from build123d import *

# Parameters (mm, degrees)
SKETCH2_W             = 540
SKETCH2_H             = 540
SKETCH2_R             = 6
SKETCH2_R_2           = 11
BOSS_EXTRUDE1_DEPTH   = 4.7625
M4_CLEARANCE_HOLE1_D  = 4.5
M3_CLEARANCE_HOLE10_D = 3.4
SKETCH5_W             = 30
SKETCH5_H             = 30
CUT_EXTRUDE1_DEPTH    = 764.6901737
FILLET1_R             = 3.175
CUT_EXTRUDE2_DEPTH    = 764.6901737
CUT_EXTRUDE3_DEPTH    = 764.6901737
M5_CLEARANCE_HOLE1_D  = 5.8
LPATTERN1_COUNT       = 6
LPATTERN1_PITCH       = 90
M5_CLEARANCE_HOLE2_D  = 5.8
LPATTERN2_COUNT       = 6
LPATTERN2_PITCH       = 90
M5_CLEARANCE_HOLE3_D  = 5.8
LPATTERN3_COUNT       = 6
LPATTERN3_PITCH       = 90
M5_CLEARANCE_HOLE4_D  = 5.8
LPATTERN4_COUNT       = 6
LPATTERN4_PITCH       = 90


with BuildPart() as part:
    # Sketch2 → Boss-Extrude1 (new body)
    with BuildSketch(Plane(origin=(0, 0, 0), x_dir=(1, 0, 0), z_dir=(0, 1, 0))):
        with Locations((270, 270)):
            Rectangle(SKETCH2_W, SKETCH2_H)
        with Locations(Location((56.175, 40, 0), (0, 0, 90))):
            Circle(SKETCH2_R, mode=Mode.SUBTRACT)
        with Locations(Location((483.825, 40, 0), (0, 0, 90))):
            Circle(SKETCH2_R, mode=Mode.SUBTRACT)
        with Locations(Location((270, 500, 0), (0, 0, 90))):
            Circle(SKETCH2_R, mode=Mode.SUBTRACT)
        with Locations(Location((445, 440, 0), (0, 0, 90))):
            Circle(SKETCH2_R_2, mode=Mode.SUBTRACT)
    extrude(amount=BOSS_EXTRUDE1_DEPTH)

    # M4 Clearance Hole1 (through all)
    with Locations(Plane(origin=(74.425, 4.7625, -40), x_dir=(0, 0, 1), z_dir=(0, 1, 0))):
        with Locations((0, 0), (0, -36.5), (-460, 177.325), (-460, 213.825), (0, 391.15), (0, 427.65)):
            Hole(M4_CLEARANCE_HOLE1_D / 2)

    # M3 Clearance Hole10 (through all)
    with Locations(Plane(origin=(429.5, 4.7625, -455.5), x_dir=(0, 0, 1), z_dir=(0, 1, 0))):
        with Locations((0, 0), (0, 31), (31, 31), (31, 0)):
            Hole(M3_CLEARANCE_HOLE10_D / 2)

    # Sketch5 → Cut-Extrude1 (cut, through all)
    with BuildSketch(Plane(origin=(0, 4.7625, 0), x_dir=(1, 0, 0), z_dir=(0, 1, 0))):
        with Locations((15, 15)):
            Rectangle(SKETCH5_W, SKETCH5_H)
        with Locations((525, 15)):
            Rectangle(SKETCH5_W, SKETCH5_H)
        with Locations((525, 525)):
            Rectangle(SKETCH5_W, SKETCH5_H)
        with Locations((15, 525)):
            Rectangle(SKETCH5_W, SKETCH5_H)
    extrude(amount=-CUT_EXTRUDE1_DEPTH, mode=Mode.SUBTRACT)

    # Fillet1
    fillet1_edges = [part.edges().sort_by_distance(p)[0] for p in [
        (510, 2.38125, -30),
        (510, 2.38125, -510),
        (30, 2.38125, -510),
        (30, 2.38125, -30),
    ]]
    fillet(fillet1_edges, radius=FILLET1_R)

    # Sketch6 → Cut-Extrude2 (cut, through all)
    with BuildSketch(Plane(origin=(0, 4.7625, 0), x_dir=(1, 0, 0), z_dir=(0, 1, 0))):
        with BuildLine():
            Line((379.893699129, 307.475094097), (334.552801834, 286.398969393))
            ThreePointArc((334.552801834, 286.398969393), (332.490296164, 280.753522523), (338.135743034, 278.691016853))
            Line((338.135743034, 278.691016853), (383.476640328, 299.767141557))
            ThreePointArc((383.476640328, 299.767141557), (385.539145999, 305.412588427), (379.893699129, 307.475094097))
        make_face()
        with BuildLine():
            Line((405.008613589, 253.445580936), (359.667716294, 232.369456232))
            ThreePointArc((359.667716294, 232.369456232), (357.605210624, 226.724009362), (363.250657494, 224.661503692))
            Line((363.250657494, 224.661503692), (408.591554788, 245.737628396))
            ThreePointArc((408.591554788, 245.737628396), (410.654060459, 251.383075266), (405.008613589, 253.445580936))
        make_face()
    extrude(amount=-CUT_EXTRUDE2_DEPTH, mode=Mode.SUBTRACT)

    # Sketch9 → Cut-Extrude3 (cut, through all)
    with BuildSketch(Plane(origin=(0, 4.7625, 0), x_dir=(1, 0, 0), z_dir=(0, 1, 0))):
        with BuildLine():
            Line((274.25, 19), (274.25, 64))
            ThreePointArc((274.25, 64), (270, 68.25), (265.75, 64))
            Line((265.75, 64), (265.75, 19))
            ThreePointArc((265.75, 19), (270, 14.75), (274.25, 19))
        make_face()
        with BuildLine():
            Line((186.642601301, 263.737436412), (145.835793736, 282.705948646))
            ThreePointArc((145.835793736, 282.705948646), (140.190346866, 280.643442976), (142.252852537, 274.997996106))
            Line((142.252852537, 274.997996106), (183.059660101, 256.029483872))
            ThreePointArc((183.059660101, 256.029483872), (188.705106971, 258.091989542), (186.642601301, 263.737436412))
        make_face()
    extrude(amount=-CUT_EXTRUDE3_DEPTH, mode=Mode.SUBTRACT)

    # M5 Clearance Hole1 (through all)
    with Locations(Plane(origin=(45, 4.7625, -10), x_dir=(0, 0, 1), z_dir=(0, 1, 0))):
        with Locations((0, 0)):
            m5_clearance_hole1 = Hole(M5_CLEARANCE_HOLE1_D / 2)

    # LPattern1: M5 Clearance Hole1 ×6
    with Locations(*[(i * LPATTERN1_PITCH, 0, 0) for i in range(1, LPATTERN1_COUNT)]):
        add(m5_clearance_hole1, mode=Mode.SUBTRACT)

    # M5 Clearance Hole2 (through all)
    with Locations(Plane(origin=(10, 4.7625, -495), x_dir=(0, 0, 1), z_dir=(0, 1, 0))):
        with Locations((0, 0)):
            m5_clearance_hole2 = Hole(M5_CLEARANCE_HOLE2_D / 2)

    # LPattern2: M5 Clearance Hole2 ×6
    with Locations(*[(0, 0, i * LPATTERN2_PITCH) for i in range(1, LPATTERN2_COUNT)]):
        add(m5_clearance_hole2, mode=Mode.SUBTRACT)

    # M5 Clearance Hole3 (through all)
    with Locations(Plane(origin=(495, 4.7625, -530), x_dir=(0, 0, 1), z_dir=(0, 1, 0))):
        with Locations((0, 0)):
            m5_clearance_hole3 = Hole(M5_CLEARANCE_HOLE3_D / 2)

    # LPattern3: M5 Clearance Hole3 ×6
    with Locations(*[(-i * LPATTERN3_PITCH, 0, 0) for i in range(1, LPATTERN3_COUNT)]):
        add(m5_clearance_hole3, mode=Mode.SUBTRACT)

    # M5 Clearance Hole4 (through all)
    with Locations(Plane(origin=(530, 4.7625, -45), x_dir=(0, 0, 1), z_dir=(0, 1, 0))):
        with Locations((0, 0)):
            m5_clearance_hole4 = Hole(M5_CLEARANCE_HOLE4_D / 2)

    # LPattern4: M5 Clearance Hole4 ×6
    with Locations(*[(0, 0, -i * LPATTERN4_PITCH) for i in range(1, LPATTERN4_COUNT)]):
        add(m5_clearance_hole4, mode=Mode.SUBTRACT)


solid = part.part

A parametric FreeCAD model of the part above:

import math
import FreeCAD as App
import Part
import Sketcher
from FreeCAD import Vector
Q = App.Units.Quantity


def edges_at(feature, points):
    """Names of the edges that pass closest to the given points."""
    edges = feature.Shape.Edges
    near = lambda p: min(range(len(edges)), key=lambda i: edges[i].distToShape(Part.Vertex(*p))[0])
    return sorted({f"Edge{near(p) + 1}" for p in points})


def add_polygon(sketch, points):
    """Adds a closed chain of lines whose ends are joined by coincident constraints."""
    first, n = sketch.GeometryCount, len(points)
    for a, b in zip(points, points[1:] + points[:1]):
        sketch.addGeometry(Part.LineSegment(App.Vector(*a, 0), App.Vector(*b, 0)), False)
    for i in range(n):
        sketch.addConstraint(Sketcher.Constraint("Coincident", first + i, 2, first + (i + 1) % n, 1))

doc = App.newDocument("Part")
body = doc.addObject("PartDesign::Body", "Body")

# Sketch on XZ plane
sketch1 = body.newObject("Sketcher::SketchObject", "Sketch")
sketch1.AttachmentSupport = (doc.getObject("XZ_Plane"), [""])
sketch1.MapMode = "FlatFace"
add_polygon(sketch1, [(0, -540), (0, 0), (540, 0), (540, -540)])  # lines 0-3
sketch1.addGeometry(Part.Circle(Vector(56, -40, 0), Vector(0, 0, 1), 6), False)  # 4
sketch1.addGeometry(Part.Circle(Vector(484, -40, 0), Vector(0, 0, 1), 6), False)  # 5
sketch1.addGeometry(Part.Circle(Vector(270, -500, 0), Vector(0, 0, 1), 6), False)  # 6
sketch1.addGeometry(Part.Circle(Vector(445, -440, 0), Vector(0, 0, 1), 11), False)  # 7
sketch1.addConstraint(Sketcher.Constraint("Vertical", 0))
sketch1.addConstraint(Sketcher.Constraint("Horizontal", 1))
sketch1.addConstraint(Sketcher.Constraint("Vertical", 2))
sketch1.addConstraint(Sketcher.Constraint("Horizontal", 3))
sketch1.addConstraint(Sketcher.Constraint("Coincident", 0, 2, -1, 1))
sketch1.addConstraint(Sketcher.Constraint("Equal", 4, 5))
sketch1.addConstraint(Sketcher.Constraint("Equal", 5, 6))
sketch1.addConstraint(Sketcher.Constraint("Horizontal", 4, 3, 5, 3))
sketch1.addConstraint(Sketcher.Constraint("Equal", 3, 0))
sketch1.addConstraint(Sketcher.Constraint("Diameter", 4, Q("12 mm")))
sketch1.addConstraint(Sketcher.Constraint("Diameter", 7, Q("22 mm")))
sketch1.addConstraint(Sketcher.Constraint("DistanceX", 1, 1, 1, 2, Q("540 mm")))
sketch1.addConstraint(Sketcher.Constraint("DistanceY", 4, 3, -1, 1, Q("40 mm")))
sketch1.addConstraint(Sketcher.Constraint("DistanceX", -1, 1, 6, 3, Q("270 mm")))
sketch1.addConstraint(Sketcher.Constraint("DistanceY", 6, 3, -1, 1, Q("500 mm")))
sketch1.addConstraint(Sketcher.Constraint("DistanceX", -1, 1, 7, 3, Q("445 mm")))
sketch1.addConstraint(Sketcher.Constraint("DistanceY", 7, 3, -1, 1, Q("440 mm")))
sketch1.addConstraint(Sketcher.Constraint("DistanceX", 4, 3, 5, 3, Q("427.65 mm")))
sketch1.addConstraint(Sketcher.Constraint("DistanceX", -1, 1, 4, 3, Q("56.175 mm")))
pad1 = body.newObject("PartDesign::Pad", "Pad")
pad1.Profile = sketch1
pad1.Length = 4.7625
pad1.Reversed = True

# Sketch on XZ plane
sketch2 = body.newObject("Sketcher::SketchObject", "Sketch001")
sketch2.AttachmentSupport = (doc.getObject("XZ_Plane"), [""])
sketch2.MapMode = "FlatFace"
sketch2.AttachmentOffset = App.Placement(Vector(0, 0, -4.7625), App.Rotation())
sketch2.addGeometry(Part.Circle(Vector(74.4, -40, 0), Vector(0, 0, 1), 2.2), False)
sketch2.addGeometry(Part.Circle(Vector(37.9, -40, 0), Vector(0, 0, 1), 2.2), False)
sketch2.addGeometry(Part.Circle(Vector(251.8, -500, 0), Vector(0, 0, 1), 2.2), False)
sketch2.addGeometry(Part.Circle(Vector(288.2, -500, 0), Vector(0, 0, 1), 2.2), False)
sketch2.addGeometry(Part.Circle(Vector(465.6, -40, 0), Vector(0, 0, 1), 2.2), False)
sketch2.addGeometry(Part.Circle(Vector(502.1, -40, 0), Vector(0, 0, 1), 2.2), False)
sketch2.addConstraint(Sketcher.Constraint("Equal", 0, 1))
sketch2.addConstraint(Sketcher.Constraint("Equal", 1, 2))
sketch2.addConstraint(Sketcher.Constraint("Equal", 2, 3))
sketch2.addConstraint(Sketcher.Constraint("Equal", 3, 4))
sketch2.addConstraint(Sketcher.Constraint("Equal", 4, 5))
sketch2.addConstraint(Sketcher.Constraint("Horizontal", 0, 3, 1, 3))
sketch2.addConstraint(Sketcher.Constraint("Horizontal", 2, 3, 3, 3))
sketch2.addConstraint(Sketcher.Constraint("Horizontal", 1, 3, 4, 3))
sketch2.addConstraint(Sketcher.Constraint("Horizontal", 4, 3, 5, 3))
sketch2.addConstraint(Sketcher.Constraint("Diameter", 0, Q("4.5 mm")))
sketch2.addConstraint(Sketcher.Constraint("DistanceY", 0, 3, -1, 1, Q("40 mm")))
sketch2.addConstraint(Sketcher.Constraint("DistanceY", 2, 3, -1, 1, Q("500 mm")))
sketch2.addConstraint(Sketcher.Constraint("DistanceX", 1, 3, 0, 3, Q("36.5 mm")))
sketch2.addConstraint(Sketcher.Constraint("DistanceX", 2, 3, 3, 3, Q("36.5 mm")))
sketch2.addConstraint(Sketcher.Constraint("DistanceX", 4, 3, 5, 3, Q("36.5 mm")))
sketch2.addConstraint(Sketcher.Constraint("DistanceX", -1, 1, 2, 3, Q("251.75 mm")))
sketch2.addConstraint(Sketcher.Constraint("DistanceX", 0, 3, 4, 3, Q("391.15 mm")))
sketch2.addConstraint(Sketcher.Constraint("DistanceX", -1, 1, 0, 3, Q("74.425 mm")))
doc.recompute()
hole = body.newObject("PartDesign::Hole", "Hole")
hole.Profile = sketch2
hole.ThreadType = "None"
hole.Diameter = 4.5
hole.DepthType = "ThroughAll"
hole.Reversed = True

# Sketch on XZ plane
sketch3 = body.newObject("Sketcher::SketchObject", "Sketch002")
sketch3.AttachmentSupport = (doc.getObject("XZ_Plane"), [""])
sketch3.MapMode = "FlatFace"
sketch3.AttachmentOffset = App.Placement(Vector(0, 0, -4.7625), App.Rotation())
sketch3.addGeometry(Part.Circle(Vector(429.5, -455.5, 0), Vector(0, 0, 1), 1.7), False)
sketch3.addGeometry(Part.Circle(Vector(460.5, -455.5, 0), Vector(0, 0, 1), 1.7), False)
sketch3.addGeometry(Part.Circle(Vector(460.5, -424.5, 0), Vector(0, 0, 1), 1.7), False)
sketch3.addGeometry(Part.Circle(Vector(429.5, -424.5, 0), Vector(0, 0, 1), 1.7), False)
sketch3.addConstraint(Sketcher.Constraint("Equal", 0, 1))
sketch3.addConstraint(Sketcher.Constraint("Equal", 1, 2))
sketch3.addConstraint(Sketcher.Constraint("Equal", 2, 3))
sketch3.addConstraint(Sketcher.Constraint("Horizontal", 0, 3, 1, 3))
sketch3.addConstraint(Sketcher.Constraint("Horizontal", 2, 3, 3, 3))
sketch3.addConstraint(Sketcher.Constraint("Vertical", 1, 3, 2, 3))
sketch3.addConstraint(Sketcher.Constraint("Vertical", 0, 3, 3, 3))
sketch3.addConstraint(Sketcher.Constraint("Diameter", 0, Q("3.4 mm")))
sketch3.addConstraint(Sketcher.Constraint("DistanceX", 0, 3, 1, 3, Q("31 mm")))
sketch3.addConstraint(Sketcher.Constraint("DistanceY", 1, 3, 2, 3, Q("31 mm")))
sketch3.addConstraint(Sketcher.Constraint("DistanceX", -1, 1, 0, 3, Q("429.5 mm")))
sketch3.addConstraint(Sketcher.Constraint("DistanceY", 0, 3, -1, 1, Q("455.5 mm")))
doc.recompute()
hole2 = body.newObject("PartDesign::Hole", "Hole001")
hole2.Profile = sketch3
hole2.ThreadType = "None"
hole2.Diameter = 3.4
hole2.DepthType = "ThroughAll"
hole2.Reversed = True

# Sketch on XZ plane
sketch4 = body.newObject("Sketcher::SketchObject", "Sketch003")
sketch4.AttachmentSupport = (doc.getObject("XZ_Plane"), [""])
sketch4.MapMode = "FlatFace"
sketch4.AttachmentOffset = App.Placement(Vector(0, 0, -4.7625), App.Rotation())
add_polygon(sketch4, [(0, -30), (0, 0), (30, 0), (30, -30)])  # lines 0-3
add_polygon(sketch4, [(510, -30), (510, 0), (540, 0), (540, -30)])  # lines 4-7
add_polygon(sketch4, [(510, -540), (510, -510), (540, -510), (540, -540)])  # lines 8-11
add_polygon(sketch4, [(0, -540), (0, -510), (30, -510), (30, -540)])  # lines 12-15
sketch4.addConstraint(Sketcher.Constraint("Vertical", 0))
sketch4.addConstraint(Sketcher.Constraint("Horizontal", 1))
sketch4.addConstraint(Sketcher.Constraint("Vertical", 2))
sketch4.addConstraint(Sketcher.Constraint("Horizontal", 3))
sketch4.addConstraint(Sketcher.Constraint("Vertical", 4))
sketch4.addConstraint(Sketcher.Constraint("Horizontal", 5))
sketch4.addConstraint(Sketcher.Constraint("Vertical", 6))
sketch4.addConstraint(Sketcher.Constraint("Horizontal", 7))
sketch4.addConstraint(Sketcher.Constraint("Vertical", 8))
sketch4.addConstraint(Sketcher.Constraint("Horizontal", 9))
sketch4.addConstraint(Sketcher.Constraint("Vertical", 10))
sketch4.addConstraint(Sketcher.Constraint("Horizontal", 11))
sketch4.addConstraint(Sketcher.Constraint("Vertical", 12))
sketch4.addConstraint(Sketcher.Constraint("Horizontal", 13))
sketch4.addConstraint(Sketcher.Constraint("Vertical", 14))
sketch4.addConstraint(Sketcher.Constraint("Horizontal", 15))
sketch4.addConstraint(Sketcher.Constraint("Coincident", 0, 2, -1, 1))
sketch4.addConstraint(Sketcher.Constraint("PointOnObject", 4, 2, -1))
sketch4.addConstraint(Sketcher.Constraint("PointOnObject", 12, 2, -2))
sketch4.addConstraint(Sketcher.Constraint("Horizontal", 3, 2, 6, 2))
sketch4.addConstraint(Sketcher.Constraint("Horizontal", 9, 2, 12, 2))
sketch4.addConstraint(Sketcher.Constraint("Horizontal", 11, 2, 14, 2))
sketch4.addConstraint(Sketcher.Constraint("Vertical", 7, 2, 8, 2))
sketch4.addConstraint(Sketcher.Constraint("Vertical", 6, 2, 9, 2))
sketch4.addConstraint(Sketcher.Constraint("Vertical", 2, 2, 13, 2))
sketch4.addConstraint(Sketcher.Constraint("Equal", 3, 5))
sketch4.addConstraint(Sketcher.Constraint("Equal", 15, 0))
sketch4.addConstraint(Sketcher.Constraint("Equal", 6, 8))
sketch4.addConstraint(Sketcher.Constraint("DistanceX", 1, 1, 1, 2, Q("30 mm")))
sketch4.addConstraint(Sketcher.Constraint("DistanceX", -1, 1, 4, 2, Q("510 mm")))
sketch4.addConstraint(Sketcher.Constraint("DistanceY", 8, 2, -1, 1, Q("510 mm")))
pocket1 = body.newObject("PartDesign::Pocket", "Pocket")
pocket1.Profile = sketch4
pocket1.Type = "ThroughAll"
pocket1.Reversed = True
doc.recompute()

fillet = body.newObject("PartDesign::Fillet", "Fillet")
fillet.Base = (pocket1, edges_at(pocket1, [
    (510, 2.381, -30),
    (510, 2.381, -510),
    (30, 2.381, -510),
    (30, 2.381, -30),
]))
fillet.Radius = 3.175

# Sketch on XZ plane
sketch5 = body.newObject("Sketcher::SketchObject", "Sketch004")
sketch5.AttachmentSupport = (doc.getObject("XZ_Plane"), [""])
sketch5.MapMode = "FlatFace"
sketch5.AttachmentOffset = App.Placement(Vector(0, 0, -4.7625), App.Rotation())
sketch5.addGeometry(Part.LineSegment(Vector(379.9, -307.5, 0), Vector(334.6, -286.4, 0)), False)
sketch5.addGeometry(Part.ArcOfCircle(Part.Circle(Vector(336.3, -282.5, 0), Vector(0, 0, 1), 4.2), math.radians(65), math.radians(245)), False)
sketch5.addGeometry(Part.LineSegment(Vector(338.1, -278.7, 0), Vector(383.5, -299.8, 0)), False)
sketch5.addGeometry(Part.ArcOfCircle(Part.Circle(Vector(381.7, -303.6, 0), Vector(0, 0, 1), 4.2), math.radians(-115), math.radians(65)), False)
sketch5.addGeometry(Part.LineSegment(Vector(405, -253.4, 0), Vector(359.7, -232.4, 0)), False)
sketch5.addGeometry(Part.ArcOfCircle(Part.Circle(Vector(361.5, -228.5, 0), Vector(0, 0, 1), 4.2), math.radians(65), math.radians(245)), False)
sketch5.addGeometry(Part.LineSegment(Vector(363.3, -224.7, 0), Vector(408.6, -245.7, 0)), False)
sketch5.addGeometry(Part.ArcOfCircle(Part.Circle(Vector(406.8, -249.6, 0), Vector(0, 0, 1), 4.2), math.radians(-115), math.radians(65)), False)
sketch5.addConstraint(Sketcher.Constraint("Tangent", 0, 2, 1, 2))
sketch5.addConstraint(Sketcher.Constraint("Tangent", 1, 1, 2, 1))
sketch5.addConstraint(Sketcher.Constraint("Tangent", 2, 2, 3, 2))
sketch5.addConstraint(Sketcher.Constraint("Tangent", 3, 1, 0, 1))
sketch5.addConstraint(Sketcher.Constraint("Tangent", 4, 2, 5, 2))
sketch5.addConstraint(Sketcher.Constraint("Tangent", 5, 1, 6, 1))
sketch5.addConstraint(Sketcher.Constraint("Tangent", 6, 2, 7, 2))
sketch5.addConstraint(Sketcher.Constraint("Tangent", 7, 1, 4, 1))
sketch5.addConstraint(Sketcher.Constraint("Equal", 1, 3))
sketch5.addConstraint(Sketcher.Constraint("Equal", 3, 5))
sketch5.addConstraint(Sketcher.Constraint("Equal", 5, 7))
sketch5.addConstraint(Sketcher.Constraint("Parallel", 2, 4))
sketch5.addConstraint(Sketcher.Constraint("Equal", 2, 4))
sketch5.addConstraint(Sketcher.Constraint("Radius", 1, Q("4.25 mm")))
sketch5.addConstraint(Sketcher.Constraint("Distance", 0, Q("50 mm")))
sketch5.addConstraint(Sketcher.Constraint("DistanceX", -1, 1, 0, 2, Q("334.552802 mm")))
sketch5.addConstraint(Sketcher.Constraint("DistanceX", -1, 1, 3, 1, Q("379.893699 mm")))
sketch5.addConstraint(Sketcher.Constraint("DistanceY", 5, 3, -1, 1, Q("228.51548 mm")))
sketch5.addConstraint(Sketcher.Constraint("DistanceY", 0, 2, -1, 1, Q("286.398969 mm")))
sketch5.addConstraint(Sketcher.Constraint("DistanceX", 1, 3, 7, 3, Q("70.455812 mm")))
pocket2 = body.newObject("PartDesign::Pocket", "Pocket001")
pocket2.Profile = sketch5
pocket2.Type = "ThroughAll"
pocket2.Reversed = True

# Sketch on XZ plane
sketch6 = body.newObject("Sketcher::SketchObject", "Sketch005")
sketch6.AttachmentSupport = (doc.getObject("XZ_Plane"), [""])
sketch6.MapMode = "FlatFace"
sketch6.AttachmentOffset = App.Placement(Vector(0, 0, -4.7625), App.Rotation())
sketch6.addGeometry(Part.LineSegment(Vector(274.2, -19, 0), Vector(274.2, -64, 0)), False)
sketch6.addGeometry(Part.ArcOfCircle(Part.Circle(Vector(270, -64, 0), Vector(0, 0, 1), 4.2), math.radians(180), math.radians(360)), False)
sketch6.addGeometry(Part.LineSegment(Vector(265.8, -64, 0), Vector(265.8, -19, 0)), False)
sketch6.addGeometry(Part.ArcOfCircle(Part.Circle(Vector(270, -19, 0), Vector(0, 0, 1), 4.2), math.radians(0), math.radians(180)), False)
sketch6.addGeometry(Part.LineSegment(Vector(186.6, -263.7, 0), Vector(145.8, -282.7, 0)), False)
sketch6.addGeometry(Part.ArcOfCircle(Part.Circle(Vector(144, -278.9, 0), Vector(0, 0, 1), 4.2), math.radians(115), math.radians(295)), False)
sketch6.addGeometry(Part.LineSegment(Vector(142.3, -275, 0), Vector(183.1, -256, 0)), False)
sketch6.addGeometry(Part.ArcOfCircle(Part.Circle(Vector(184.9, -259.9, 0), Vector(0, 0, 1), 4.2), math.radians(-65), math.radians(115)), False)
sketch6.addConstraint(Sketcher.Constraint("Tangent", 0, 2, 1, 2))
sketch6.addConstraint(Sketcher.Constraint("Tangent", 1, 1, 2, 1))
sketch6.addConstraint(Sketcher.Constraint("Tangent", 2, 2, 3, 2))
sketch6.addConstraint(Sketcher.Constraint("Tangent", 3, 1, 0, 1))
sketch6.addConstraint(Sketcher.Constraint("Tangent", 4, 2, 5, 2))
sketch6.addConstraint(Sketcher.Constraint("Tangent", 5, 1, 6, 1))
sketch6.addConstraint(Sketcher.Constraint("Tangent", 6, 2, 7, 2))
sketch6.addConstraint(Sketcher.Constraint("Tangent", 7, 1, 4, 1))
sketch6.addConstraint(Sketcher.Constraint("Vertical", 0))
sketch6.addConstraint(Sketcher.Constraint("Vertical", 2))
sketch6.addConstraint(Sketcher.Constraint("Equal", 3, 5))
sketch6.addConstraint(Sketcher.Constraint("Equal", 5, 7))
sketch6.addConstraint(Sketcher.Constraint("DistanceY", 0, 2, 0, 1, Q("45 mm")))
sketch6.addConstraint(Sketcher.Constraint("Radius", 1, Q("4.25 mm")))
sketch6.addConstraint(Sketcher.Constraint("Distance", 4, Q("45 mm")))
sketch6.addConstraint(Sketcher.Constraint("DistanceX", -1, 1, 1, 3, Q("270 mm")))
sketch6.addConstraint(Sketcher.Constraint("DistanceY", 1, 3, -1, 1, Q("64 mm")))
sketch6.addConstraint(Sketcher.Constraint("DistanceX", -1, 1, 7, 1, Q("186.642601 mm")))
sketch6.addConstraint(Sketcher.Constraint("DistanceX", -1, 1, 7, 3, Q("184.851131 mm")))
sketch6.addConstraint(Sketcher.Constraint("DistanceY", 7, 3, -1, 1, Q("259.88346 mm")))
pocket3 = body.newObject("PartDesign::Pocket", "Pocket002")
pocket3.Profile = sketch6
pocket3.Type = "ThroughAll"
pocket3.Reversed = True

# Sketch on XZ plane
sketch7 = body.newObject("Sketcher::SketchObject", "Sketch006")
sketch7.AttachmentSupport = (doc.getObject("XZ_Plane"), [""])
sketch7.MapMode = "FlatFace"
sketch7.AttachmentOffset = App.Placement(Vector(0, 0, -4.7625), App.Rotation())
sketch7.addGeometry(Part.Circle(Vector(45, -10, 0), Vector(0, 0, 1), 2.9), False)
sketch7.addConstraint(Sketcher.Constraint("Diameter", 0, Q("5.8 mm")))
sketch7.addConstraint(Sketcher.Constraint("DistanceX", -1, 1, 0, 3, Q("45 mm")))
sketch7.addConstraint(Sketcher.Constraint("DistanceY", 0, 3, -1, 1, Q("10 mm")))
doc.recompute()
hole3 = body.newObject("PartDesign::Hole", "Hole002")
hole3.Profile = sketch7
hole3.ThreadType = "None"
hole3.Diameter = 5.8
hole3.DepthType = "ThroughAll"
hole3.Reversed = True
doc.recompute()

linearpattern = body.newObject("PartDesign::LinearPattern", "LinearPattern")
linearpattern.Originals = [hole3]
linearpattern.Direction = (doc.getObject("X_Axis"), [""])
linearpattern.Mode = "offset"
linearpattern.Offset = 90
linearpattern.Occurrences = 6
body.Tip = linearpattern

# Sketch on XZ plane
sketch8 = body.newObject("Sketcher::SketchObject", "Sketch007")
sketch8.AttachmentSupport = (doc.getObject("XZ_Plane"), [""])
sketch8.MapMode = "FlatFace"
sketch8.AttachmentOffset = App.Placement(Vector(0, 0, -4.7625), App.Rotation())
sketch8.addGeometry(Part.Circle(Vector(10, -495, 0), Vector(0, 0, 1), 2.9), False)
sketch8.addConstraint(Sketcher.Constraint("Diameter", 0, Q("5.8 mm")))
sketch8.addConstraint(Sketcher.Constraint("DistanceX", -1, 1, 0, 3, Q("10 mm")))
sketch8.addConstraint(Sketcher.Constraint("DistanceY", 0, 3, -1, 1, Q("495 mm")))
doc.recompute()
hole4 = body.newObject("PartDesign::Hole", "Hole003")
hole4.Profile = sketch8
hole4.ThreadType = "None"
hole4.Diameter = 5.8
hole4.DepthType = "ThroughAll"
hole4.Reversed = True
doc.recompute()

linearpattern2 = body.newObject("PartDesign::LinearPattern", "LinearPattern001")
linearpattern2.Originals = [hole4]
linearpattern2.Direction = (doc.getObject("Z_Axis"), [""])
linearpattern2.Mode = "offset"
linearpattern2.Offset = 90
linearpattern2.Occurrences = 6
body.Tip = linearpattern2

# Sketch on XZ plane
sketch9 = body.newObject("Sketcher::SketchObject", "Sketch008")
sketch9.AttachmentSupport = (doc.getObject("XZ_Plane"), [""])
sketch9.MapMode = "FlatFace"
sketch9.AttachmentOffset = App.Placement(Vector(0, 0, -4.7625), App.Rotation())
sketch9.addGeometry(Part.Circle(Vector(495, -530, 0), Vector(0, 0, 1), 2.9), False)
sketch9.addConstraint(Sketcher.Constraint("Diameter", 0, Q("5.8 mm")))
sketch9.addConstraint(Sketcher.Constraint("DistanceX", -1, 1, 0, 3, Q("495 mm")))
sketch9.addConstraint(Sketcher.Constraint("DistanceY", 0, 3, -1, 1, Q("530 mm")))
doc.recompute()
hole5 = body.newObject("PartDesign::Hole", "Hole004")
hole5.Profile = sketch9
hole5.ThreadType = "None"
hole5.Diameter = 5.8
hole5.DepthType = "ThroughAll"
hole5.Reversed = True
doc.recompute()

linearpattern3 = body.newObject("PartDesign::LinearPattern", "LinearPattern002")
linearpattern3.Originals = [hole5]
linearpattern3.Direction = (doc.getObject("X_Axis"), [""])
linearpattern3.Mode = "offset"
linearpattern3.Offset = 90
linearpattern3.Occurrences = 6
linearpattern3.Reversed = True
body.Tip = linearpattern3

# Sketch on XZ plane
sketch10 = body.newObject("Sketcher::SketchObject", "Sketch009")
sketch10.AttachmentSupport = (doc.getObject("XZ_Plane"), [""])
sketch10.MapMode = "FlatFace"
sketch10.AttachmentOffset = App.Placement(Vector(0, 0, -4.7625), App.Rotation())
sketch10.addGeometry(Part.Circle(Vector(530, -45, 0), Vector(0, 0, 1), 2.9), False)
sketch10.addConstraint(Sketcher.Constraint("Diameter", 0, Q("5.8 mm")))
sketch10.addConstraint(Sketcher.Constraint("DistanceX", -1, 1, 0, 3, Q("530 mm")))
sketch10.addConstraint(Sketcher.Constraint("DistanceY", 0, 3, -1, 1, Q("45 mm")))
doc.recompute()
hole6 = body.newObject("PartDesign::Hole", "Hole005")
hole6.Profile = sketch10
hole6.ThreadType = "None"
hole6.Diameter = 5.8
hole6.DepthType = "ThroughAll"
hole6.Reversed = True
doc.recompute()

linearpattern4 = body.newObject("PartDesign::LinearPattern", "LinearPattern003")
linearpattern4.Originals = [hole6]
linearpattern4.Direction = (doc.getObject("Z_Axis"), [""])
linearpattern4.Mode = "offset"
linearpattern4.Offset = 90
linearpattern4.Occurrences = 6
linearpattern4.Reversed = True
body.Tip = linearpattern4

doc.recompute()
